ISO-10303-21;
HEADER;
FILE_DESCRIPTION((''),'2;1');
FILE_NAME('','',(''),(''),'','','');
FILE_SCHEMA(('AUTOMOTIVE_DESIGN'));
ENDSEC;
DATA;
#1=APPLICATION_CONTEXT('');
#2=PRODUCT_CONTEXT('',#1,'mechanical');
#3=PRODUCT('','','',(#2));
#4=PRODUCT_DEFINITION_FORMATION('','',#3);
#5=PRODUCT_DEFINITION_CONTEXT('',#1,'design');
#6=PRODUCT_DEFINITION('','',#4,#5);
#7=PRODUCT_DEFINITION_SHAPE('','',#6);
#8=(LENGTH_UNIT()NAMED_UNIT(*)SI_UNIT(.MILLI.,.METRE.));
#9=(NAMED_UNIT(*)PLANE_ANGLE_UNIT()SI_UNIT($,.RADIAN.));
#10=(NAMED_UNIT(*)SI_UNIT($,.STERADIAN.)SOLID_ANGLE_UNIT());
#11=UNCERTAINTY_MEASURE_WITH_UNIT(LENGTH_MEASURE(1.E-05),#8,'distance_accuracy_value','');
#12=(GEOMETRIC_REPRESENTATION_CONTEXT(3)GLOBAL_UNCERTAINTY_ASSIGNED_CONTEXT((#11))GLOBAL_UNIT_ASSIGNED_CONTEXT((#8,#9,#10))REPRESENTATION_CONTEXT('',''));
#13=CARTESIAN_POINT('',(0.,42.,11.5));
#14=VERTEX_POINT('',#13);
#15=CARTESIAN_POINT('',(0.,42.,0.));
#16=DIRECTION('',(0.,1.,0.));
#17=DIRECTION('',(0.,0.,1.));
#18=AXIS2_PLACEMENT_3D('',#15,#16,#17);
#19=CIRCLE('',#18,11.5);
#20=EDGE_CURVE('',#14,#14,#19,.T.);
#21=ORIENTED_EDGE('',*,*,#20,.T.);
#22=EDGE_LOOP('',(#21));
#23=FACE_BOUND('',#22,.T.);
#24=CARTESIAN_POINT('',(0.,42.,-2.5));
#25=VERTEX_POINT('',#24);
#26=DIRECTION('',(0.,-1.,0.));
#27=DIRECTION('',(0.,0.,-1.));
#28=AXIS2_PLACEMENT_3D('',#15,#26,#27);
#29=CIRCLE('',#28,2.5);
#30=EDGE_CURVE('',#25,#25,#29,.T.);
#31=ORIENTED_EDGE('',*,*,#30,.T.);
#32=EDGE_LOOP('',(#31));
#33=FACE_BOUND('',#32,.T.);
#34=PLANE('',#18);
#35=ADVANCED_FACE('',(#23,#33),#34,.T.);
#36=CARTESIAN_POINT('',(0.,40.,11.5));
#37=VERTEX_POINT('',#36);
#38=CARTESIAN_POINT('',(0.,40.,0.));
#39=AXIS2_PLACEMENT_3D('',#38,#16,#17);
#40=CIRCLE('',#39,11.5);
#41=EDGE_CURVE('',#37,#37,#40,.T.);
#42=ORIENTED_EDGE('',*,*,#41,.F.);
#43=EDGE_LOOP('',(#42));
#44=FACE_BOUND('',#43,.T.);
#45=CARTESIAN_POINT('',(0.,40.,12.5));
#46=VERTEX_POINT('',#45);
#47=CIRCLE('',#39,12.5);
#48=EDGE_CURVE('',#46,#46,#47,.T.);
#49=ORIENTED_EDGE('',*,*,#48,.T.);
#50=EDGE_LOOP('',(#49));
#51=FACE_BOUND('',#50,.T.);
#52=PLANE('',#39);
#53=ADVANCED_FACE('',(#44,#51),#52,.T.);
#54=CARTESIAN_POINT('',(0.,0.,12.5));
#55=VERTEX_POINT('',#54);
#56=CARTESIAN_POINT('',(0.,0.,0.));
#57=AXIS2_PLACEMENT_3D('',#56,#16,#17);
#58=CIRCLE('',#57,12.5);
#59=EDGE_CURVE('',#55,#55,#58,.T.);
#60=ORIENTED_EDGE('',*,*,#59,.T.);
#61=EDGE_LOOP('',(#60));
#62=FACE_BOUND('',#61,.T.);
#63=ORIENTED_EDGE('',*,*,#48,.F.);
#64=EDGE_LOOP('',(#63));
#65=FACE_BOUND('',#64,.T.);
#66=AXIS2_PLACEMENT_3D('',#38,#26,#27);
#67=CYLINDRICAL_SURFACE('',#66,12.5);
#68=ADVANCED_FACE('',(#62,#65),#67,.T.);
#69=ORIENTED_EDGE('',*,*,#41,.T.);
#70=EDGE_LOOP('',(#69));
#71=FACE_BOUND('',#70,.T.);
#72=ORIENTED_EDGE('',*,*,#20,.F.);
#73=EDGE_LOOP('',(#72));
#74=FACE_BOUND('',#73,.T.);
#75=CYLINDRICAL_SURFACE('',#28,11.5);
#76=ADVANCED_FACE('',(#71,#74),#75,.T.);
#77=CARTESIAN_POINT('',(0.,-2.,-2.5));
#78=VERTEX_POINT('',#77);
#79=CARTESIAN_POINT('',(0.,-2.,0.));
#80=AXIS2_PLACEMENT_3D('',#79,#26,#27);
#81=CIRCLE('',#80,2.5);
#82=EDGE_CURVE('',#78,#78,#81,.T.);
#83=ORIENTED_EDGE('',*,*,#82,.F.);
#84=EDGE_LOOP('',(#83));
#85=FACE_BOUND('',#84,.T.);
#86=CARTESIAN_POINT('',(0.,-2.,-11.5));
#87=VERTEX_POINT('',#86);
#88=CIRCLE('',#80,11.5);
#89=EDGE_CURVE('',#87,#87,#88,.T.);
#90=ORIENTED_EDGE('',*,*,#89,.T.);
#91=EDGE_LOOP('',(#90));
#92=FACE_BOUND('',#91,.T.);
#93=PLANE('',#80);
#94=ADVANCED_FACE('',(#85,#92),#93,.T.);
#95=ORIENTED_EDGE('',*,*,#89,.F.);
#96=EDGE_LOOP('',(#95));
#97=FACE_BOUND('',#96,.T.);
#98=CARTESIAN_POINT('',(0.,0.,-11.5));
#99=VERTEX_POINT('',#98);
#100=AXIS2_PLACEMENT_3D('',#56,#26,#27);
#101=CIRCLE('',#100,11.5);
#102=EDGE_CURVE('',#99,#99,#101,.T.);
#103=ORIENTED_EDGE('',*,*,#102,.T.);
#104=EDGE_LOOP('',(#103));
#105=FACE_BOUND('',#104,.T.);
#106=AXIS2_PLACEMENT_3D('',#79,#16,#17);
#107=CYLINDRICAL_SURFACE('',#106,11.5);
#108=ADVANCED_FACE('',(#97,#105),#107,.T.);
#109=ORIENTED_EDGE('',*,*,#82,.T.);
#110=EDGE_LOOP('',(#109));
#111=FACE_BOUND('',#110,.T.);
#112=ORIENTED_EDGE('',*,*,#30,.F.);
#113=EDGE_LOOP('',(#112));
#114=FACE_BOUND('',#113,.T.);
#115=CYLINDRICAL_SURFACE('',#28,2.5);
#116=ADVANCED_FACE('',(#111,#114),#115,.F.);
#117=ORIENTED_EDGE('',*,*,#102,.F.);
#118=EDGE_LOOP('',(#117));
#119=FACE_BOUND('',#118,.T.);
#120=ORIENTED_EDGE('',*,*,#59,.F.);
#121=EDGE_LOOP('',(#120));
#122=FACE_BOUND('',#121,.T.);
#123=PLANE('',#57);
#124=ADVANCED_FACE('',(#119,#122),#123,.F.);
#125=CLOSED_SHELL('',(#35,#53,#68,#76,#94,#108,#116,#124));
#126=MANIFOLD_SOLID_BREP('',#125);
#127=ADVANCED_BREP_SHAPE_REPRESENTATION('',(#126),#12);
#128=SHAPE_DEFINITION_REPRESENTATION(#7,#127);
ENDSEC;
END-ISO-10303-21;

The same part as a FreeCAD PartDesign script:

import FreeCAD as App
import Part
import Sketcher
from FreeCAD import Vector

doc = App.newDocument("Part")
params = doc.addObject("Spreadsheet::Sheet", "Params")
for row, (alias, value) in enumerate([
    ("sketch1_diameter", "25 mm"),
    ("pad1_length", "40 mm"),
    ("sketch2_diameter", "23 mm"),
    ("pad2_length", "2 mm"),
    ("sketch3_diameter", "23 mm"),
    ("pad3_length", "2 mm"),
    ("sketch4_diameter", "5 mm"),
], start=1):
    params.set(f"A{row}", alias)
    params.set(f"B{row}", "=" + value)
    params.setAlias(f"B{row}", alias)

body = doc.addObject("PartDesign::Body", "Body")

# Sketch on XZ plane
sketch1 = body.newObject("Sketcher::SketchObject", "Sketch")
sketch1.AttachmentSupport = (doc.getObject("XZ_Plane"), [""])
sketch1.MapMode = "FlatFace"
sketch1.addGeometry(Part.Circle(Vector(0, 0, 0), Vector(0, 0, 1), 12), False)
sketch1.addConstraint([
    Sketcher.Constraint("Coincident", 0, 3, -1, 1),
    Sketcher.Constraint("Diameter", 0, 25.0),
])
sketch1.setExpression("Constraints[1]", "Params.sketch1_diameter")
pad1 = body.newObject("PartDesign::Pad", "Pad")
pad1.Profile = sketch1
pad1.setExpression("Length", "Params.pad1_length")
pad1.Reversed = True

# Sketch on XZ plane
sketch2 = body.newObject("Sketcher::SketchObject", "Sketch001")
sketch2.AttachmentSupport = (doc.getObject("XZ_Plane"), [""])
sketch2.MapMode = "FlatFace"
sketch2.AttachmentOffset = App.Placement(Vector(0, 0, -40), App.Rotation())
sketch2.addGeometry(Part.Circle(Vector(0, 0, 0), Vector(0, 0, 1), 12), False)
sketch2.addConstraint([
    Sketcher.Constraint("Coincident", 0, 3, -1, 1),
    Sketcher.Constraint("Diameter", 0, 23.0),
])
sketch2.setExpression("Constraints[1]", "Params.sketch2_diameter")
pad2 = body.newObject("PartDesign::Pad", "Pad001")
pad2.Profile = sketch2
pad2.setExpression("Length", "Params.pad2_length")
pad2.Reversed = True

# Sketch on XZ plane
sketch3 = body.newObject("Sketcher::SketchObject", "Sketch002")
sketch3.AttachmentSupport = (doc.getObject("XZ_Plane"), [""])
sketch3.MapMode = "FlatFace"
sketch3.addGeometry(Part.Circle(Vector(0, 0, 0), Vector(0, 0, 1), 12), False)
sketch3.addConstraint([
    Sketcher.Constraint("Coincident", 0, 3, -1, 1),
    Sketcher.Constraint("Diameter", 0, 23.0),
])
sketch3.setExpression("Constraints[1]", "Params.sketch3_diameter")
pad3 = body.newObject("PartDesign::Pad", "Pad002")
pad3.Profile = sketch3
pad3.setExpression("Length", "Params.pad3_length")

# Sketch on XZ plane
sketch4 = body.newObject("Sketcher::SketchObject", "Sketch003")
sketch4.AttachmentSupport = (doc.getObject("XZ_Plane"), [""])
sketch4.MapMode = "FlatFace"
sketch4.AttachmentOffset = App.Placement(Vector(0, 0, 2), App.Rotation())
sketch4.addGeometry(Part.Circle(Vector(0, 0, 0), Vector(0, 0, 1), 2.5), False)
sketch4.addConstraint([
    Sketcher.Constraint("Coincident", 0, 3, -1, 1),
    Sketcher.Constraint("Diameter", 0, 5.0),
])
sketch4.setExpression("Constraints[1]", "Params.sketch4_diameter")
pocket1 = body.newObject("PartDesign::Pocket", "Pocket")
pocket1.Profile = sketch4
pocket1.Type = "ThroughAll"
pocket1.Midplane = True

doc.recompute()
